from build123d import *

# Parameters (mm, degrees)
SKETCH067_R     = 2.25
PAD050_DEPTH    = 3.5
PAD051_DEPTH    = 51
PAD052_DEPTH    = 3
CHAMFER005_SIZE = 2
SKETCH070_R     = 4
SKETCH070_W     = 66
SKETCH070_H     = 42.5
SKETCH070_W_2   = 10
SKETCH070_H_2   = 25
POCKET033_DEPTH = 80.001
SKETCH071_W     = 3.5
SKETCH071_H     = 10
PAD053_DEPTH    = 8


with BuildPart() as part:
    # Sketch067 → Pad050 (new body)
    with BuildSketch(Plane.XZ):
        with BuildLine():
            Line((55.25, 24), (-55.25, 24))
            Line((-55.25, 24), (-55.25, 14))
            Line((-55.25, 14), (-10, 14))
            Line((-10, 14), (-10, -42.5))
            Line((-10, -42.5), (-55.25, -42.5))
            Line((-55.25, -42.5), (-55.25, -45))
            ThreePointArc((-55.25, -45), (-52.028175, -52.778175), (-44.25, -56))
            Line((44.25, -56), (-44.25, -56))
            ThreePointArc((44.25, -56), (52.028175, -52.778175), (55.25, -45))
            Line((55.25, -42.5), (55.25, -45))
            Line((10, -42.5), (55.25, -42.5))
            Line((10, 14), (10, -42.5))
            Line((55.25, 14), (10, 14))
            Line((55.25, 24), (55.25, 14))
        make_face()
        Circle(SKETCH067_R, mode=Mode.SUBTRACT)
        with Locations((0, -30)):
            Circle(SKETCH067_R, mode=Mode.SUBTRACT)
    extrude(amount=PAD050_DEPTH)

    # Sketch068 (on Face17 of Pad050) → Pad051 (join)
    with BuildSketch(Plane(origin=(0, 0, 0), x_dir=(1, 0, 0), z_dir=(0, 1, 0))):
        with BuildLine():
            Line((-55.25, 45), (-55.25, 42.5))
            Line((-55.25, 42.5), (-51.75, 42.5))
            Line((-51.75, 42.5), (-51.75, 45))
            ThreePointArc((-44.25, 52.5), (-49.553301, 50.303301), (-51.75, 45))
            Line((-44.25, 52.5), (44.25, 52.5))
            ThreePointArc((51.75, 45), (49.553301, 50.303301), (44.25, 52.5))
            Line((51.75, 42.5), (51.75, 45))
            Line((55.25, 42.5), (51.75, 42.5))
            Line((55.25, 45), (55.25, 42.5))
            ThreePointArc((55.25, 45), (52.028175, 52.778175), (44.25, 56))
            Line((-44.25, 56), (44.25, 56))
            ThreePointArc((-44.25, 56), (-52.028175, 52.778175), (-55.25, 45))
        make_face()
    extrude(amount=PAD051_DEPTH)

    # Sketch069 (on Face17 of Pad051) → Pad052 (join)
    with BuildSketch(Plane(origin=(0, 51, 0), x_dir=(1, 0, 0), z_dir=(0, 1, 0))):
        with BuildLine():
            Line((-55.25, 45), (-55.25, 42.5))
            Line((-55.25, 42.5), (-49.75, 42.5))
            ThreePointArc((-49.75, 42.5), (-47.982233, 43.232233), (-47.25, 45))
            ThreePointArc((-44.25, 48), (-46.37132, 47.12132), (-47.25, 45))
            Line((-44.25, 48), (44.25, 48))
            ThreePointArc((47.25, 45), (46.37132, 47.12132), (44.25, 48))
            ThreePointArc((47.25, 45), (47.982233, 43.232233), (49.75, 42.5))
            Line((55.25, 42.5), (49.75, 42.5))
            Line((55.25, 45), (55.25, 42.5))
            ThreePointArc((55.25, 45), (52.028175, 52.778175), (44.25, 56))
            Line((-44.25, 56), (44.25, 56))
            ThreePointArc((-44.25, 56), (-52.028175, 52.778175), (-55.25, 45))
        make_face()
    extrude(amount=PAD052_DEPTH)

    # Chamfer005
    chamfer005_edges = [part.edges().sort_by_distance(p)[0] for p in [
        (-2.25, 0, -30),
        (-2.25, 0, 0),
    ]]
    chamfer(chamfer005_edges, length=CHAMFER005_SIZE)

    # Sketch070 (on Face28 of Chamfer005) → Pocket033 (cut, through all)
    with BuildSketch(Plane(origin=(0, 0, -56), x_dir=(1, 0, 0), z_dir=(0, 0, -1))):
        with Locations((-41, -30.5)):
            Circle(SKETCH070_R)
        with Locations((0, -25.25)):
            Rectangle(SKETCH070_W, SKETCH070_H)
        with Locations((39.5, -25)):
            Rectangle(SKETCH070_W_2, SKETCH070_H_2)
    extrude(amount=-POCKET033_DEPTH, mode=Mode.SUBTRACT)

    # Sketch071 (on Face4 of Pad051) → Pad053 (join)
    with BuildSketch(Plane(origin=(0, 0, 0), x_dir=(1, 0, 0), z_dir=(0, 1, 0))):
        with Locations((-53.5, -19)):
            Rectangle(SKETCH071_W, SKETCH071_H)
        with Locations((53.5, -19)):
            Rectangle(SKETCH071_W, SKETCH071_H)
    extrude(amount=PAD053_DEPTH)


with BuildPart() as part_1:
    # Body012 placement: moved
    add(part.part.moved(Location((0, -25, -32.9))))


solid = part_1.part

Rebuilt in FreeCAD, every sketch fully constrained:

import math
import FreeCAD as App
import Part
import Sketcher


def edges_at(feature, points):
    """Names of the edges that pass closest to the given points."""
    edges = feature.Shape.Edges
    near = lambda p: min(range(len(edges)), key=lambda i: edges[i].distToShape(Part.Vertex(*p))[0])
    return sorted({f"Edge{near(p) + 1}" for p in points})

doc = App.newDocument("Part")
body = doc.addObject("PartDesign::Body", "Body")

# Sketch on XZ plane
sketch1 = body.newObject("Sketcher::SketchObject", "Sketch")
sketch1.AttachmentSupport = (doc.getObject("XZ_Plane"), [""])
sketch1.MapMode = "FlatFace"
sketch1.addGeometry(Part.LineSegment(App.Vector(55.2, 24, 0), App.Vector(-55.2, 24, 0)), False)
sketch1.addGeometry(Part.LineSegment(App.Vector(-55.2, 24, 0), App.Vector(-55.2, 14, 0)), False)
sketch1.addGeometry(Part.LineSegment(App.Vector(-55.2, 14, 0), App.Vector(-10, 14, 0)), False)
sketch1.addGeometry(Part.LineSegment(App.Vector(-10, 14, 0), App.Vector(-10, -42.5, 0)), False)
sketch1.addGeometry(Part.LineSegment(App.Vector(-10, -42.5, 0), App.Vector(-55.2, -42.5, 0)), False)
sketch1.addGeometry(Part.LineSegment(App.Vector(-55.2, -42.5, 0), App.Vector(-55.2, -45, 0)), False)
sketch1.addGeometry(Part.ArcOfCircle(Part.Circle(App.Vector(-44.3, -45, 0), App.Vector(0, 0, 1), 11), math.radians(180), math.radians(270)), False)
sketch1.addGeometry(Part.LineSegment(App.Vector(-44.2, -56, 0), App.Vector(44.2, -56, 0)), False)
sketch1.addGeometry(Part.ArcOfCircle(Part.Circle(App.Vector(44.3, -45, 0), App.Vector(0, 0, 1), 11), math.radians(-90), math.radians(0)), False)
sketch1.addGeometry(Part.LineSegment(App.Vector(55.2, -45, 0), App.Vector(55.2, -42.5, 0)), False)
sketch1.addGeometry(Part.LineSegment(App.Vector(55.2, -42.5, 0), App.Vector(10, -42.5, 0)), False)
sketch1.addGeometry(Part.LineSegment(App.Vector(10, -42.5, 0), App.Vector(10, 14, 0)), False)
sketch1.addGeometry(Part.LineSegment(App.Vector(10, 14, 0), App.Vector(55.2, 14, 0)), False)
sketch1.addGeometry(Part.LineSegment(App.Vector(55.2, 14, 0), App.Vector(55.2, 24, 0)), False)
sketch1.addGeometry(Part.Circle(App.Vector(0, -30, 0), App.Vector(0, 0, 1), 2.2), False)
sketch1.addGeometry(Part.Circle(App.Vector(0, 0, 0), App.Vector(0, 0, 1), 2.2), False)
sketch1.addConstraint(Sketcher.Constraint("Coincident", 0, 2, 1, 1))
sketch1.addConstraint(Sketcher.Constraint("Coincident", 1, 2, 2, 1))
sketch1.addConstraint(Sketcher.Constraint("Coincident", 2, 2, 3, 1))
sketch1.addConstraint(Sketcher.Constraint("Coincident", 3, 2, 4, 1))
sketch1.addConstraint(Sketcher.Constraint("Coincident", 4, 2, 5, 1))
sketch1.addConstraint(Sketcher.Constraint("Tangent", 5, 2, 6, 1))
sketch1.addConstraint(Sketcher.Constraint("Tangent", 6, 2, 7, 1))
sketch1.addConstraint(Sketcher.Constraint("Tangent", 7, 2, 8, 1))
sketch1.addConstraint(Sketcher.Constraint("Tangent", 8, 2, 9, 1))
sketch1.addConstraint(Sketcher.Constraint("Coincident", 9, 2, 10, 1))
sketch1.addConstraint(Sketcher.Constraint("Coincident", 10, 2, 11, 1))
sketch1.addConstraint(Sketcher.Constraint("Coincident", 11, 2, 12, 1))
sketch1.addConstraint(Sketcher.Constraint("Coincident", 12, 2, 13, 1))
sketch1.addConstraint(Sketcher.Constraint("Coincident", 13, 2, 0, 1))
sketch1.addConstraint(Sketcher.Constraint("Horizontal", 0))
sketch1.addConstraint(Sketcher.Constraint("Vertical", 1))
sketch1.addConstraint(Sketcher.Constraint("Horizontal", 2))
sketch1.addConstraint(Sketcher.Constraint("Vertical", 3))
sketch1.addConstraint(Sketcher.Constraint("Horizontal", 4))
sketch1.addConstraint(Sketcher.Constraint("Vertical", 5))
sketch1.addConstraint(Sketcher.Constraint("Horizontal", 7))
sketch1.addConstraint(Sketcher.Constraint("Vertical", 9))
sketch1.addConstraint(Sketcher.Constraint("Horizontal", 10))
sketch1.addConstraint(Sketcher.Constraint("Vertical", 11))
sketch1.addConstraint(Sketcher.Constraint("Horizontal", 12))
sketch1.addConstraint(Sketcher.Constraint("Vertical", 13))
sketch1.addConstraint(Sketcher.Constraint("Coincident", 15, 3, -1, 1))
sketch1.addConstraint(Sketcher.Constraint("Equal", 6, 8))
sketch1.addConstraint(Sketcher.Constraint("Equal", 14, 15))
sketch1.addConstraint(Sketcher.Constraint("Symmetric", 4, 2, 9, 2, -2))
sketch1.addConstraint(Sketcher.Constraint("Symmetric", 2, 2, 11, 2, -2))
sketch1.addConstraint(Sketcher.Constraint("PointOnObject", 14, 3, -2))
sketch1.addConstraint(Sketcher.Constraint("Vertical", 1, 2, 4, 2))
sketch1.addConstraint(Sketcher.Constraint("Vertical", 9, 2, 12, 2))
sketch1.addConstraint(Sketcher.Constraint("Radius", 6, 10.999999))
sketch1.addConstraint(Sketcher.Constraint("Diameter", 14, 4.5))
sketch1.addConstraint(Sketcher.Constraint("DistanceY", 1, 2, 1, 1, 10.0))
sketch1.addConstraint(Sketcher.Constraint("DistanceX", 0, 2, 0, 1, 110.5))
sketch1.addConstraint(Sketcher.Constraint("DistanceY", 3, 2, 3, 1, 56.5))
sketch1.addConstraint(Sketcher.Constraint("DistanceY", 5, 2, 5, 1, 2.5))
sketch1.addConstraint(Sketcher.Constraint("DistanceY", 6, 3, -1, 1, 45.000001))
sketch1.addConstraint(Sketcher.Constraint("DistanceY", 14, 3, -1, 1, 30.0))
sketch1.addConstraint(Sketcher.Constraint("DistanceX", 2, 2, -1, 1, 10.0))
pad1 = body.newObject("PartDesign::Pad", "Pad")
pad1.Profile = sketch1
pad1.Length = 3.5

# Sketch on XZ plane
sketch2 = body.newObject("Sketcher::SketchObject", "Sketch001")
sketch2.AttachmentSupport = (doc.getObject("XZ_Plane"), [""])
sketch2.MapMode = "FlatFace"
sketch2.addGeometry(Part.LineSegment(App.Vector(-55.2, -45, 0), App.Vector(-55.2, -42.5, 0)), False)
sketch2.addGeometry(Part.LineSegment(App.Vector(-55.2, -42.5, 0), App.Vector(-51.8, -42.5, 0)), False)
sketch2.addGeometry(Part.LineSegment(App.Vector(-51.8, -42.5, 0), App.Vector(-51.8, -45, 0)), False)
sketch2.addGeometry(Part.ArcOfCircle(Part.Circle(App.Vector(-44.3, -45, 0), App.Vector(0, 0, 1), 7.5), math.radians(180), math.radians(270)), False)
sketch2.addGeometry(Part.LineSegment(App.Vector(-44.2, -52.5, 0), App.Vector(44.2, -52.5, 0)), False)
sketch2.addGeometry(Part.ArcOfCircle(Part.Circle(App.Vector(44.3, -45, 0), App.Vector(0, 0, 1), 7.5), math.radians(-90), math.radians(0)), False)
sketch2.addGeometry(Part.LineSegment(App.Vector(51.8, -45, 0), App.Vector(51.8, -42.5, 0)), False)
sketch2.addGeometry(Part.LineSegment(App.Vector(51.8, -42.5, 0), App.Vector(55.2, -42.5, 0)), False)
sketch2.addGeometry(Part.LineSegment(App.Vector(55.2, -42.5, 0), App.Vector(55.2, -45, 0)), False)
sketch2.addGeometry(Part.ArcOfCircle(Part.Circle(App.Vector(44.3, -45, 0), App.Vector(0, 0, 1), 11), math.radians(-90), math.radians(0)), False)
sketch2.addGeometry(Part.LineSegment(App.Vector(44.2, -56, 0), App.Vector(-44.2, -56, 0)), False)
sketch2.addGeometry(Part.ArcOfCircle(Part.Circle(App.Vector(-44.3, -45, 0), App.Vector(0, 0, 1), 11), math.radians(180), math.radians(270)), False)
sketch2.addConstraint(Sketcher.Constraint("Coincident", 0, 2, 1, 1))
sketch2.addConstraint(Sketcher.Constraint("Coincident", 1, 2, 2, 1))
sketch2.addConstraint(Sketcher.Constraint("Tangent", 2, 2, 3, 1))
sketch2.addConstraint(Sketcher.Constraint("Tangent", 3, 2, 4, 1))
sketch2.addConstraint(Sketcher.Constraint("Tangent", 4, 2, 5, 1))
sketch2.addConstraint(Sketcher.Constraint("Tangent", 5, 2, 6, 1))
sketch2.addConstraint(Sketcher.Constraint("Coincident", 6, 2, 7, 1))
sketch2.addConstraint(Sketcher.Constraint("Coincident", 7, 2, 8, 1))
sketch2.addConstraint(Sketcher.Constraint("Tangent", 8, 2, 9, 2))
sketch2.addConstraint(Sketcher.Constraint("Tangent", 9, 1, 10, 1))
sketch2.addConstraint(Sketcher.Constraint("Tangent", 10, 2, 11, 2))
sketch2.addConstraint(Sketcher.Constraint("Tangent", 11, 1, 0, 1))
sketch2.addConstraint(Sketcher.Constraint("Vertical", 0))
sketch2.addConstraint(Sketcher.Constraint("Horizontal", 1))
sketch2.addConstraint(Sketcher.Constraint("Vertical", 2))
sketch2.addConstraint(Sketcher.Constraint("Horizontal", 4))
sketch2.addConstraint(Sketcher.Constraint("Vertical", 6))
sketch2.addConstraint(Sketcher.Constraint("Horizontal", 7))
sketch2.addConstraint(Sketcher.Constraint("Vertical", 8))
sketch2.addConstraint(Sketcher.Constraint("Horizontal", 10))
sketch2.addConstraint(Sketcher.Constraint("Coincident", 9, 3, 5, 3))
sketch2.addConstraint(Sketcher.Constraint("Coincident", 11, 3, 3, 3))
sketch2.addConstraint(Sketcher.Constraint("Equal", 3, 5))
sketch2.addConstraint(Sketcher.Constraint("Symmetric", 1, 2, 6, 2, -2))
sketch2.addConstraint(Sketcher.Constraint("Radius", 9, 10.999999))
sketch2.addConstraint(Sketcher.Constraint("Radius", 3, 7.5))
sketch2.addConstraint(Sketcher.Constraint("DistanceX", 4, 1, 4, 2, 88.5))
sketch2.addConstraint(Sketcher.Constraint("DistanceY", 0, 1, 0, 2, 2.5))
sketch2.addConstraint(Sketcher.Constraint("DistanceY", 3, 3, -1, 1, 45.0))
pad2 = body.newObject("PartDesign::Pad", "Pad001")
pad2.Profile = sketch2
pad2.Length = 51
pad2.Reversed = True

# Sketch on XZ plane
sketch3 = body.newObject("Sketcher::SketchObject", "Sketch002")
sketch3.AttachmentSupport = (doc.getObject("XZ_Plane"), [""])
sketch3.MapMode = "FlatFace"
sketch3.AttachmentOffset = App.Placement(App.Vector(0, 0, -51), App.Rotation())
sketch3.addGeometry(Part.LineSegment(App.Vector(-55.2, -45, 0), App.Vector(-55.2, -42.5, 0)), False)
sketch3.addGeometry(Part.LineSegment(App.Vector(-55.2, -42.5, 0), App.Vector(-49.8, -42.5, 0)), False)
sketch3.addGeometry(Part.ArcOfCircle(Part.Circle(App.Vector(-49.7, -45, 0), App.Vector(0, 0, 1), 2.5), math.radians(0), math.radians(90)), False)
sketch3.addGeometry(Part.ArcOfCircle(Part.Circle(App.Vector(-44.2, -45, 0), App.Vector(0, 0, 1), 3), math.radians(-180), math.radians(-90)), False)
sketch3.addGeometry(Part.LineSegment(App.Vector(-44.2, -48, 0), App.Vector(44.2, -48, 0)), False)
sketch3.addGeometry(Part.ArcOfCircle(Part.Circle(App.Vector(44.2, -45, 0), App.Vector(0, 0, 1), 3), math.radians(-90), math.radians(0)), False)
sketch3.addGeometry(Part.ArcOfCircle(Part.Circle(App.Vector(49.7, -45, 0), App.Vector(0, 0, 1), 2.5), math.radians(90), math.radians(180)), False)
sketch3.addGeometry(Part.LineSegment(App.Vector(49.8, -42.5, 0), App.Vector(55.2, -42.5, 0)), False)
sketch3.addGeometry(Part.LineSegment(App.Vector(55.2, -42.5, 0), App.Vector(55.2, -45, 0)), False)
sketch3.addGeometry(Part.ArcOfCircle(Part.Circle(App.Vector(44.3, -45, 0), App.Vector(0, 0, 1), 11), math.radians(-90), math.radians(0)), False)
sketch3.addGeometry(Part.LineSegment(App.Vector(44.2, -56, 0), App.Vector(-44.2, -56, 0)), False)
sketch3.addGeometry(Part.ArcOfCircle(Part.Circle(App.Vector(-44.3, -45, 0), App.Vector(0, 0, 1), 11), math.radians(180), math.radians(270)), False)
sketch3.addConstraint(Sketcher.Constraint("Coincident", 0, 2, 1, 1))
sketch3.addConstraint(Sketcher.Constraint("Tangent", 1, 2, 2, 2))
sketch3.addConstraint(Sketcher.Constraint("Tangent", 2, 1, 3, 1))
sketch3.addConstraint(Sketcher.Constraint("Tangent", 3, 2, 4, 1))
sketch3.addConstraint(Sketcher.Constraint("Tangent", 4, 2, 5, 1))
sketch3.addConstraint(Sketcher.Constraint("Tangent", 5, 2, 6, 2))
sketch3.addConstraint(Sketcher.Constraint("Tangent", 6, 1, 7, 1))
sketch3.addConstraint(Sketcher.Constraint("Coincident", 7, 2, 8, 1))
sketch3.addConstraint(Sketcher.Constraint("Tangent", 8, 2, 9, 2))
sketch3.addConstraint(Sketcher.Constraint("Tangent", 9, 1, 10, 1))
sketch3.addConstraint(Sketcher.Constraint("Tangent", 10, 2, 11, 2))
sketch3.addConstraint(Sketcher.Constraint("Tangent", 11, 1, 0, 1))
sketch3.addConstraint(Sketcher.Constraint("Vertical", 0))
sketch3.addConstraint(Sketcher.Constraint("Horizontal", 1))
sketch3.addConstraint(Sketcher.Constraint("Horizontal", 4))
sketch3.addConstraint(Sketcher.Constraint("Horizontal", 7))
sketch3.addConstraint(Sketcher.Constraint("Vertical", 8))
sketch3.addConstraint(Sketcher.Constraint("Horizontal", 10))
sketch3.addConstraint(Sketcher.Constraint("Coincident", 9, 3, 5, 3))
sketch3.addConstraint(Sketcher.Constraint("Coincident", 11, 3, 3, 3))
sketch3.addConstraint(Sketcher.Constraint("Equal", 3, 5))
sketch3.addConstraint(Sketcher.Constraint("Equal", 2, 6))
sketch3.addConstraint(Sketcher.Constraint("Symmetric", 2, 3, 6, 3, -2))
sketch3.addConstraint(Sketcher.Constraint("Horizontal", 2, 3, 3, 3))
sketch3.addConstraint(Sketcher.Constraint("Radius", 3, 3.000001))
sketch3.addConstraint(Sketcher.Constraint("Radius", 9, 10.999999))
sketch3.addConstraint(Sketcher.Constraint("Radius", 2, 2.5))
sketch3.addConstraint(Sketcher.Constraint("DistanceX", 4, 1, 4, 2, 88.5))
sketch3.addConstraint(Sketcher.Constraint("DistanceY", 2, 3, -1, 1, 45.0))
pad3 = body.newObject("PartDesign::Pad", "Pad002")
pad3.Profile = sketch3
pad3.Length = 3
pad3.Reversed = True
doc.recompute()

chamfer = body.newObject("PartDesign::Chamfer", "Chamfer")
chamfer.Base = (pad3, edges_at(pad3, [(-2.25, 0, -30), (-2.25, 0, 0)]))
chamfer.Size = 2

# Sketch on XY plane
sketch4 = body.newObject("Sketcher::SketchObject", "Sketch003")
sketch4.AttachmentSupport = (doc.getObject("XY_Plane"), [""])
sketch4.MapMode = "FlatFace"
sketch4.AttachmentOffset = App.Placement(App.Vector(0, 0, -56), App.Rotation())
sketch4.addGeometry(Part.Circle(App.Vector(-41, 30.5, 0), App.Vector(0, 0, 1), 4), False)
sketch4.addGeometry(Part.LineSegment(App.Vector(-33, 4, 0), App.Vector(-33, 46.5, 0)), False)
sketch4.addGeometry(Part.LineSegment(App.Vector(-33, 46.5, 0), App.Vector(33, 46.5, 0)), False)
sketch4.addGeometry(Part.LineSegment(App.Vector(33, 46.5, 0), App.Vector(33, 4, 0)), False)
sketch4.addGeometry(Part.LineSegment(App.Vector(33, 4, 0), App.Vector(-33, 4, 0)), False)
sketch4.addGeometry(Part.LineSegment(App.Vector(34.5, 12.5, 0), App.Vector(34.5, 37.5, 0)), False)
sketch4.addGeometry(Part.LineSegment(App.Vector(34.5, 37.5, 0), App.Vector(44.5, 37.5, 0)), False)
sketch4.addGeometry(Part.LineSegment(App.Vector(44.5, 37.5, 0), App.Vector(44.5, 12.5, 0)), False)
sketch4.addGeometry(Part.LineSegment(App.Vector(44.5, 12.5, 0), App.Vector(34.5, 12.5, 0)), False)
sketch4.addConstraint(Sketcher.Constraint("Coincident", 1, 2, 2, 1))
sketch4.addConstraint(Sketcher.Constraint("Coincident", 2, 2, 3, 1))
sketch4.addConstraint(Sketcher.Constraint("Coincident", 3, 2, 4, 1))
sketch4.addConstraint(Sketcher.Constraint("Coincident", 4, 2, 1, 1))
sketch4.addConstraint(Sketcher.Constraint("Coincident", 5, 2, 6, 1))
sketch4.addConstraint(Sketcher.Constraint("Coincident", 6, 2, 7, 1))
sketch4.addConstraint(Sketcher.Constraint("Coincident", 7, 2, 8, 1))
sketch4.addConstraint(Sketcher.Constraint("Coincident", 8, 2, 5, 1))
sketch4.addConstraint(Sketcher.Constraint("Vertical", 1))
sketch4.addConstraint(Sketcher.Constraint("Horizontal", 2))
sketch4.addConstraint(Sketcher.Constraint("Vertical", 3))
sketch4.addConstraint(Sketcher.Constraint("Horizontal", 4))
sketch4.addConstraint(Sketcher.Constraint("Vertical", 5))
sketch4.addConstraint(Sketcher.Constraint("Horizontal", 6))
sketch4.addConstraint(Sketcher.Constraint("Vertical", 7))
sketch4.addConstraint(Sketcher.Constraint("Horizontal", 8))
sketch4.addConstraint(Sketcher.Constraint("Diameter", 0, 8.0))
sketch4.addConstraint(Sketcher.Constraint("DistanceX", 2, 1, 2, 2, 66.0))
sketch4.addConstraint(Sketcher.Constraint("DistanceX", 6, 1, 6, 2, 10.0))
sketch4.addConstraint(Sketcher.Constraint("DistanceY", 5, 1, 5, 2, 25.0))
sketch4.addConstraint(Sketcher.Constraint("DistanceY", 1, 1, 1, 2, 42.5))
sketch4.addConstraint(Sketcher.Constraint("DistanceX", 0, 3, -1, 1, 41.0))
sketch4.addConstraint(Sketcher.Constraint("DistanceX", 1, 2, -1, 1, 33.0))
sketch4.addConstraint(Sketcher.Constraint("DistanceY", -1, 1, 3, 2, 4.0))
sketch4.addConstraint(Sketcher.Constraint("DistanceY", 0, 3, 1, 2, 16.0))
sketch4.addConstraint(Sketcher.Constraint("DistanceY", 5, 2, 2, 2, 9.0))
sketch4.addConstraint(Sketcher.Constraint("DistanceX", -1, 1, 5, 2, 34.5))
pocket1 = body.newObject("PartDesign::Pocket", "Pocket")
pocket1.Profile = sketch4
pocket1.Type = "ThroughAll"
pocket1.Reversed = True

# Sketch on XZ plane
sketch5 = body.newObject("Sketcher::SketchObject", "Sketch004")
sketch5.AttachmentSupport = (doc.getObject("XZ_Plane"), [""])
sketch5.MapMode = "FlatFace"
sketch5.addGeometry(Part.LineSegment(App.Vector(-55.2, 14, 0), App.Vector(-55.2, 24, 0)), False)
sketch5.addGeometry(Part.LineSegment(App.Vector(-55.2, 24, 0), App.Vector(-51.8, 24, 0)), False)
sketch5.addGeometry(Part.LineSegment(App.Vector(-51.8, 24, 0), App.Vector(-51.8, 14, 0)), False)
sketch5.addGeometry(Part.LineSegment(App.Vector(-51.8, 14, 0), App.Vector(-55.2, 14, 0)), False)
sketch5.addGeometry(Part.LineSegment(App.Vector(51.8, 14, 0), App.Vector(51.8, 24, 0)), False)
sketch5.addGeometry(Part.LineSegment(App.Vector(51.8, 24, 0), App.Vector(55.2, 24, 0)), False)
sketch5.addGeometry(Part.LineSegment(App.Vector(55.2, 24, 0), App.Vector(55.2, 14, 0)), False)
sketch5.addGeometry(Part.LineSegment(App.Vector(55.2, 14, 0), App.Vector(51.8, 14, 0)), False)
sketch5.addConstraint(Sketcher.Constraint("Coincident", 0, 2, 1, 1))
sketch5.addConstraint(Sketcher.Constraint("Coincident", 1, 2, 2, 1))
sketch5.addConstraint(Sketcher.Constraint("Coincident", 2, 2, 3, 1))
sketch5.addConstraint(Sketcher.Constraint("Coincident", 3, 2, 0, 1))
sketch5.addConstraint(Sketcher.Constraint("Coincident", 4, 2, 5, 1))
sketch5.addConstraint(Sketcher.Constraint("Coincident", 5, 2, 6, 1))
sketch5.addConstraint(Sketcher.Constraint("Coincident", 6, 2, 7, 1))
sketch5.addConstraint(Sketcher.Constraint("Coincident", 7, 2, 4, 1))
sketch5.addConstraint(Sketcher.Constraint("Vertical", 0))
sketch5.addConstraint(Sketcher.Constraint("Horizontal", 1))
sketch5.addConstraint(Sketcher.Constraint("Vertical", 2))
sketch5.addConstraint(Sketcher.Constraint("Horizontal", 3))
sketch5.addConstraint(Sketcher.Constraint("Vertical", 4))
sketch5.addConstraint(Sketcher.Constraint("Horizontal", 5))
sketch5.addConstraint(Sketcher.Constraint("Vertical", 6))
sketch5.addConstraint(Sketcher.Constraint("Horizontal", 7))
sketch5.addConstraint(Sketcher.Constraint("Symmetric", 1, 2, 4, 2, -2))
sketch5.addConstraint(Sketcher.Constraint("Symmetric", 3, 2, 6, 2, -2))
sketch5.addConstraint(Sketcher.Constraint("DistanceY", 0, 1, 0, 2, 10.0))
sketch5.addConstraint(Sketcher.Constraint("DistanceX", 1, 1, 1, 2, 3.5))
sketch5.addConstraint(Sketcher.Constraint("DistanceY", -1, 1, 0, 2, 24.0))
sketch5.addConstraint(Sketcher.Constraint("DistanceX", 0, 2, 4, 2, 107.0))
pad4 = body.newObject("PartDesign::Pad", "Pad003")
pad4.Profile = sketch5
pad4.Length = 8
pad4.Reversed = True
body2 = doc.addObject("PartDesign::Body", "Body001")
doc.recompute()

body.Placement = App.Placement(App.Vector(0, -25, -32.9), App.Rotation(App.Vector(0, 0, 1), 0))
boolean = body2.newObject("PartDesign::Boolean", "Boolean")
boolean.Type = "Fuse"
boolean.addObjects([body])

doc.recompute()
